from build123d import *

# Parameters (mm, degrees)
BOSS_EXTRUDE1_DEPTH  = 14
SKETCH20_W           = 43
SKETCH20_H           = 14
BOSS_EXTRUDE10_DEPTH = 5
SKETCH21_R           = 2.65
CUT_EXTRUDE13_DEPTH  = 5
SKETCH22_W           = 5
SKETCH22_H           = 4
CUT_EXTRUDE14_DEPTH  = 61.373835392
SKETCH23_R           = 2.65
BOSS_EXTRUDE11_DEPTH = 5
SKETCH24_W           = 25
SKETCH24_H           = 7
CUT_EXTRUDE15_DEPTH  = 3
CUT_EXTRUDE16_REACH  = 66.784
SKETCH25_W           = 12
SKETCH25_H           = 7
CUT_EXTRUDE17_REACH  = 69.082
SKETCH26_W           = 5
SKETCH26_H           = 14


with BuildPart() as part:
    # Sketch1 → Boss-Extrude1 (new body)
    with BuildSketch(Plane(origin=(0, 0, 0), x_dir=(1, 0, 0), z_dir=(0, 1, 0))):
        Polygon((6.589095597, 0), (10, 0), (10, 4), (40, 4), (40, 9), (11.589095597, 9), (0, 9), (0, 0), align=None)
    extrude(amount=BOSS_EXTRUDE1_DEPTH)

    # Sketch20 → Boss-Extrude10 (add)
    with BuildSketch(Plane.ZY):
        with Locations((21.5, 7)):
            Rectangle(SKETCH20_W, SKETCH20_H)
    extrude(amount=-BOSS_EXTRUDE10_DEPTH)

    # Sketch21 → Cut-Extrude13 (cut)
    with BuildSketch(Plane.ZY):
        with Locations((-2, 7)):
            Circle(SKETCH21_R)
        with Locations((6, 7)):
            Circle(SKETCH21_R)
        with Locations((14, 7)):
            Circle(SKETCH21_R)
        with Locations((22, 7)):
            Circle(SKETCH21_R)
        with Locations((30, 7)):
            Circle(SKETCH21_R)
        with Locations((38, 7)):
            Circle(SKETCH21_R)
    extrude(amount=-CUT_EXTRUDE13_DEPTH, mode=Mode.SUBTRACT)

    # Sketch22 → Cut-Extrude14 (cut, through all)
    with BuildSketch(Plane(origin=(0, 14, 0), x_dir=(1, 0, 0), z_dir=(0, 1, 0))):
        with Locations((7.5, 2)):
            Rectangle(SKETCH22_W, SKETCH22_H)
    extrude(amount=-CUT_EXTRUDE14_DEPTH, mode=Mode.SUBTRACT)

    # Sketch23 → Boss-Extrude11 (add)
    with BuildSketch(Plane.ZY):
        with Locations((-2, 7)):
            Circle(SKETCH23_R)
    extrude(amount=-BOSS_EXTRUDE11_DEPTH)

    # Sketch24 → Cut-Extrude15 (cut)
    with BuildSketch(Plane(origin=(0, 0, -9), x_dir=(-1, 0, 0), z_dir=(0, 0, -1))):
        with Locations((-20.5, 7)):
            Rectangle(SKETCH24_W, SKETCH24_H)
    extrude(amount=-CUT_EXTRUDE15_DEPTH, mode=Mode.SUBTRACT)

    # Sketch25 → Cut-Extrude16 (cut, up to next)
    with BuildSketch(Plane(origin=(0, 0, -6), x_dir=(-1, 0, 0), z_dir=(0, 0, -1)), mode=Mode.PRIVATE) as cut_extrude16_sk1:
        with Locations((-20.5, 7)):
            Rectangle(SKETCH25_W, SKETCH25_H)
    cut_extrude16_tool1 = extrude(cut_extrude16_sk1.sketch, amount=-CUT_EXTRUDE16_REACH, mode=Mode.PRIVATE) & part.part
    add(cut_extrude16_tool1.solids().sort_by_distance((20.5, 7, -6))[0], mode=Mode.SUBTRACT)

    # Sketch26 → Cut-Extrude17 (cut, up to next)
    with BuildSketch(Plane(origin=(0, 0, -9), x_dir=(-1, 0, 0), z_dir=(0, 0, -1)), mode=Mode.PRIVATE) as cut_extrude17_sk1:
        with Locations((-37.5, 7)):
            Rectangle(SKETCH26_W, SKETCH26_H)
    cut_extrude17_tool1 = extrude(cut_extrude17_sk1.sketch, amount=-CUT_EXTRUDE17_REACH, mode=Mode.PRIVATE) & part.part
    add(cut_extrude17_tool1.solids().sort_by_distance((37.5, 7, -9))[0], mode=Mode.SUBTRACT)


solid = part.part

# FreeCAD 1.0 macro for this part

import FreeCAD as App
import Part
import Sketcher

V = App.Vector
Q = App.Units.Quantity

doc = App.newDocument("Part")
body = doc.addObject("PartDesign::Body", "Body")

# Sketch on XZ plane
sketch1 = body.newObject("Sketcher::SketchObject", "Sketch")
sketch1.AttachmentSupport = (doc.getObject("XZ_Plane"), [""])
sketch1.MapMode = "FlatFace"
sketch1.addGeometry([
    Part.LineSegment(V(10, 0, 0), V(10, -4, 0)),  # 0
    Part.LineSegment(V(10, -4, 0), V(40, -4, 0)),  # 1
    Part.LineSegment(V(40, -4, 0), V(40, -9, 0)),  # 2
    Part.LineSegment(V(40, -9, 0), V(0, -9, 0)),  # 3
    Part.LineSegment(V(0, -9, 0), V(0, 0, 0)),  # 4
    Part.LineSegment(V(0, 0, 0), V(10, 0, 0)),  # 5
], False)
sketch1.addConstraint([
    Sketcher.Constraint("Coincident", 0, 2, 1, 1),
    Sketcher.Constraint("Coincident", 1, 2, 2, 1),
    Sketcher.Constraint("Coincident", 2, 2, 3, 1),
    Sketcher.Constraint("Coincident", 3, 2, 4, 1),
    Sketcher.Constraint("Coincident", 4, 2, 5, 1),
    Sketcher.Constraint("Coincident", 5, 2, 0, 1),
    Sketcher.Constraint("Vertical", 0),
    Sketcher.Constraint("Horizontal", 1),
    Sketcher.Constraint("Vertical", 2),
    Sketcher.Constraint("Horizontal", 3),
    Sketcher.Constraint("Vertical", 4),
    Sketcher.Constraint("Horizontal", 5),
    Sketcher.Constraint("Coincident", 4, 2, -1, 1),
    Sketcher.Constraint("DistanceX", 1, 1, 1, 2, Q("30 mm")),
    Sketcher.Constraint("DistanceX", 3, 2, 3, 1, Q("40 mm")),
    Sketcher.Constraint("DistanceY", 0, 2, 0, 1, Q("4 mm")),
    Sketcher.Constraint("DistanceY", 2, 2, 2, 1, Q("5 mm")),
])
pad1 = body.newObject("PartDesign::Pad", "Pad")
pad1.Profile = sketch1
pad1.Length = 14
pad1.Reversed = True

# Sketch on YZ plane
sketch2 = body.newObject("Sketcher::SketchObject", "Sketch001")
sketch2.AttachmentSupport = (doc.getObject("YZ_Plane"), [""])
sketch2.MapMode = "FlatFace"
sketch2.addGeometry([
    Part.LineSegment(V(14, 0, 0), V(0, 0, 0)),
    Part.LineSegment(V(0, 0, 0), V(0, 43, 0)),
    Part.LineSegment(V(0, 43, 0), V(14, 43, 0)),
    Part.LineSegment(V(14, 43, 0), V(14, 0, 0)),
], False)
sketch2.addConstraint([
    Sketcher.Constraint("Coincident", 0, 2, 1, 1),
    Sketcher.Constraint("Coincident", 1, 2, 2, 1),
    Sketcher.Constraint("Coincident", 2, 2, 3, 1),
    Sketcher.Constraint("Coincident", 3, 2, 0, 1),
    Sketcher.Constraint("Horizontal", 0),
    Sketcher.Constraint("Vertical", 1),
    Sketcher.Constraint("Horizontal", 2),
    Sketcher.Constraint("Vertical", 3),
    Sketcher.Constraint("Coincident", 0, 2, -1, 1),
    Sketcher.Constraint("DistanceX", 0, 2, 0, 1, Q("14 mm")),
    Sketcher.Constraint("DistanceY", 1, 1, 1, 2, Q("43 mm")),
])
pad2 = body.newObject("PartDesign::Pad", "Pad001")
pad2.Profile = sketch2
pad2.Length = 5

# Sketch on YZ plane
sketch3 = body.newObject("Sketcher::SketchObject", "Sketch002")
sketch3.AttachmentSupport = (doc.getObject("YZ_Plane"), [""])
sketch3.MapMode = "FlatFace"
sketch3.addGeometry([
    Part.Circle(V(7, -2, 0), V(0, 0, 1), 2.6),  # 0
    Part.Circle(V(7, 6, 0), V(0, 0, 1), 2.6),  # 1
    Part.Circle(V(7, 14, 0), V(0, 0, 1), 2.6),  # 2
    Part.Circle(V(7, 22, 0), V(0, 0, 1), 2.6),  # 3
    Part.Circle(V(7, 30, 0), V(0, 0, 1), 2.6),  # 4
    Part.Circle(V(7, 38, 0), V(0, 0, 1), 2.6),  # 5
], False)
sketch3.addConstraint([
    Sketcher.Constraint("Equal", 0, 1),
    Sketcher.Constraint("Equal", 1, 2),
    Sketcher.Constraint("Equal", 2, 3),
    Sketcher.Constraint("Equal", 3, 4),
    Sketcher.Constraint("Equal", 4, 5),
    Sketcher.Constraint("Vertical", 0, 3, 1, 3),
    Sketcher.Constraint("Vertical", 1, 3, 2, 3),
    Sketcher.Constraint("Vertical", 2, 3, 3, 3),
    Sketcher.Constraint("Vertical", 3, 3, 4, 3),
    Sketcher.Constraint("Vertical", 4, 3, 5, 3),
    Sketcher.Constraint("Diameter", 0, Q("5.3 mm")),
    Sketcher.Constraint("DistanceX", -1, 1, 0, 3, Q("7 mm")),
    Sketcher.Constraint("DistanceY", 0, 3, -1, 1, Q("2 mm")),
    Sketcher.Constraint("DistanceY", -1, 1, 1, 3, Q("6 mm")),
    Sketcher.Constraint("DistanceY", -1, 1, 2, 3, Q("14 mm")),
    Sketcher.Constraint("DistanceY", -1, 1, 3, 3, Q("22 mm")),
    Sketcher.Constraint("DistanceY", -1, 1, 4, 3, Q("30 mm")),
    Sketcher.Constraint("DistanceY", -1, 1, 5, 3, Q("38 mm")),
])
pocket1 = body.newObject("PartDesign::Pocket", "Pocket")
pocket1.Profile = sketch3
pocket1.Length = 5
pocket1.Reversed = True

# Sketch on XZ plane
sketch4 = body.newObject("Sketcher::SketchObject", "Sketch003")
sketch4.AttachmentSupport = (doc.getObject("XZ_Plane"), [""])
sketch4.MapMode = "FlatFace"
sketch4.AttachmentOffset = App.Placement(V(0, 0, -14), App.Rotation())
sketch4.addGeometry([
    Part.LineSegment(V(5, -4, 0), V(5, 0, 0)),
    Part.LineSegment(V(5, 0, 0), V(10, 0, 0)),
    Part.LineSegment(V(10, 0, 0), V(10, -4, 0)),
    Part.LineSegment(V(10, -4, 0), V(5, -4, 0)),
], False)
sketch4.addConstraint([
    Sketcher.Constraint("Coincident", 0, 2, 1, 1),
    Sketcher.Constraint("Coincident", 1, 2, 2, 1),
    Sketcher.Constraint("Coincident", 2, 2, 3, 1),
    Sketcher.Constraint("Coincident", 3, 2, 0, 1),
    Sketcher.Constraint("Vertical", 0),
    Sketcher.Constraint("Horizontal", 1),
    Sketcher.Constraint("Vertical", 2),
    Sketcher.Constraint("Horizontal", 3),
    Sketcher.Constraint("PointOnObject", 0, 2, -1),
    Sketcher.Constraint("DistanceX", 1, 1, 1, 2, Q("5 mm")),
    Sketcher.Constraint("DistanceY", 0, 1, 0, 2, Q("4 mm")),
    Sketcher.Constraint("DistanceX", -1, 1, 0, 2, Q("5 mm")),
])
pocket2 = body.newObject("PartDesign::Pocket", "Pocket001")
pocket2.Profile = sketch4
pocket2.Type = "ThroughAll"
pocket2.Reversed = True

# Sketch on YZ plane
sketch5 = body.newObject("Sketcher::SketchObject", "Sketch004")
sketch5.AttachmentSupport = (doc.getObject("YZ_Plane"), [""])
sketch5.MapMode = "FlatFace"
sketch5.addGeometry(Part.Circle(V(7, -2, 0), V(0, 0, 1), 2.6), False)
sketch5.addConstraint([
    Sketcher.Constraint("Diameter", 0, Q("5.3 mm")),
    Sketcher.Constraint("DistanceX", -1, 1, 0, 3, Q("7 mm")),
    Sketcher.Constraint("DistanceY", 0, 3, -1, 1, Q("2 mm")),
])
pad3 = body.newObject("PartDesign::Pad", "Pad002")
pad3.Profile = sketch5
pad3.Length = 5

# Sketch on XY plane
sketch6 = body.newObject("Sketcher::SketchObject", "Sketch005")
sketch6.AttachmentSupport = (doc.getObject("XY_Plane"), [""])
sketch6.MapMode = "FlatFace"
sketch6.AttachmentOffset = App.Placement(V(0, 0, -9), App.Rotation())
sketch6.addGeometry([
    Part.LineSegment(V(33, 10, 0), V(33, 4, 0)),
    Part.LineSegment(V(33, 4, 0), V(8, 4, 0)),
    Part.LineSegment(V(8, 4, 0), V(8, 10, 0)),
    Part.LineSegment(V(8, 10, 0), V(33, 10, 0)),
], False)
sketch6.addConstraint([
    Sketcher.Constraint("Coincident", 0, 2, 1, 1),
    Sketcher.Constraint("Coincident", 1, 2, 2, 1),
    Sketcher.Constraint("Coincident", 2, 2, 3, 1),
    Sketcher.Constraint("Coincident", 3, 2, 0, 1),
    Sketcher.Constraint("Vertical", 0),
    Sketcher.Constraint("Horizontal", 1),
    Sketcher.Constraint("Vertical", 2),
    Sketcher.Constraint("Horizontal", 3),
    Sketcher.Constraint("DistanceX", 1, 2, 1, 1, Q("25 mm")),
    Sketcher.Constraint("DistanceY", 0, 2, 0, 1, Q("7 mm")),
    Sketcher.Constraint("DistanceX", -1, 1, 0, 2, Q("33 mm")),
    Sketcher.Constraint("DistanceY", -1, 1, 0, 2, Q("3.5 mm")),
])
pocket3 = body.newObject("PartDesign::Pocket", "Pocket002")
pocket3.Profile = sketch6
pocket3.Length = 3
pocket3.Reversed = True

# Sketch on XY plane
sketch7 = body.newObject("Sketcher::SketchObject", "Sketch006")
sketch7.AttachmentSupport = (doc.getObject("XY_Plane"), [""])
sketch7.MapMode = "FlatFace"
sketch7.AttachmentOffset = App.Placement(V(0, 0, -6), App.Rotation())
sketch7.addGeometry([
    Part.LineSegment(V(26, 10, 0), V(26, 4, 0)),
    Part.LineSegment(V(26, 4, 0), V(14, 4, 0)),
    Part.LineSegment(V(14, 4, 0), V(14, 10, 0)),
    Part.LineSegment(V(14, 10, 0), V(26, 10, 0)),
], False)
sketch7.addConstraint([
    Sketcher.Constraint("Coincident", 0, 2, 1, 1),
    Sketcher.Constraint("Coincident", 1, 2, 2, 1),
    Sketcher.Constraint("Coincident", 2, 2, 3, 1),
    Sketcher.Constraint("Coincident", 3, 2, 0, 1),
    Sketcher.Constraint("Vertical", 0),
    Sketcher.Constraint("Horizontal", 1),
    Sketcher.Constraint("Vertical", 2),
    Sketcher.Constraint("Horizontal", 3),
    Sketcher.Constraint("DistanceX", 1, 2, 1, 1, Q("12 mm")),
    Sketcher.Constraint("DistanceY", 0, 2, 0, 1, Q("7 mm")),
    Sketcher.Constraint("DistanceX", -1, 1, 0, 2, Q("26.5 mm")),
    Sketcher.Constraint("DistanceY", -1, 1, 0, 2, Q("3.5 mm")),
])
pocket4 = body.newObject("PartDesign::Pocket", "Pocket003")
pocket4.Profile = sketch7
pocket4.Type = "UpToFirst"
pocket4.Reversed = True

# Sketch on XY plane
sketch8 = body.newObject("Sketcher::SketchObject", "Sketch007")
sketch8.AttachmentSupport = (doc.getObject("XY_Plane"), [""])
sketch8.MapMode = "FlatFace"
sketch8.AttachmentOffset = App.Placement(V(0, 0, -9), App.Rotation())
sketch8.addGeometry([
    Part.LineSegment(V(40, 14, 0), V(40, 0, 0)),
    Part.LineSegment(V(40, 0, 0), V(35, 0, 0)),
    Part.LineSegment(V(35, 0, 0), V(35, 14, 0)),
    Part.LineSegment(V(35, 14, 0), V(40, 14, 0)),
], False)
sketch8.addConstraint([
    Sketcher.Constraint("Coincident", 0, 2, 1, 1),
    Sketcher.Constraint("Coincident", 1, 2, 2, 1),
    Sketcher.Constraint("Coincident", 2, 2, 3, 1),
    Sketcher.Constraint("Coincident", 3, 2, 0, 1),
    Sketcher.Constraint("Vertical", 0),
    Sketcher.Constraint("Horizontal", 1),
    Sketcher.Constraint("Vertical", 2),
    Sketcher.Constraint("Horizontal", 3),
    Sketcher.Constraint("PointOnObject", 0, 2, -1),
    Sketcher.Constraint("DistanceX", 1, 2, 1, 1, Q("5 mm")),
    Sketcher.Constraint("DistanceY", 0, 2, 0, 1, Q("14 mm")),
    Sketcher.Constraint("DistanceX", -1, 1, 0, 2, Q("40 mm")),
])
pocket5 = body.newObject("PartDesign::Pocket", "Pocket004")
pocket5.Profile = sketch8
pocket5.Type = "UpToFirst"
pocket5.Reversed = True

doc.recompute()
